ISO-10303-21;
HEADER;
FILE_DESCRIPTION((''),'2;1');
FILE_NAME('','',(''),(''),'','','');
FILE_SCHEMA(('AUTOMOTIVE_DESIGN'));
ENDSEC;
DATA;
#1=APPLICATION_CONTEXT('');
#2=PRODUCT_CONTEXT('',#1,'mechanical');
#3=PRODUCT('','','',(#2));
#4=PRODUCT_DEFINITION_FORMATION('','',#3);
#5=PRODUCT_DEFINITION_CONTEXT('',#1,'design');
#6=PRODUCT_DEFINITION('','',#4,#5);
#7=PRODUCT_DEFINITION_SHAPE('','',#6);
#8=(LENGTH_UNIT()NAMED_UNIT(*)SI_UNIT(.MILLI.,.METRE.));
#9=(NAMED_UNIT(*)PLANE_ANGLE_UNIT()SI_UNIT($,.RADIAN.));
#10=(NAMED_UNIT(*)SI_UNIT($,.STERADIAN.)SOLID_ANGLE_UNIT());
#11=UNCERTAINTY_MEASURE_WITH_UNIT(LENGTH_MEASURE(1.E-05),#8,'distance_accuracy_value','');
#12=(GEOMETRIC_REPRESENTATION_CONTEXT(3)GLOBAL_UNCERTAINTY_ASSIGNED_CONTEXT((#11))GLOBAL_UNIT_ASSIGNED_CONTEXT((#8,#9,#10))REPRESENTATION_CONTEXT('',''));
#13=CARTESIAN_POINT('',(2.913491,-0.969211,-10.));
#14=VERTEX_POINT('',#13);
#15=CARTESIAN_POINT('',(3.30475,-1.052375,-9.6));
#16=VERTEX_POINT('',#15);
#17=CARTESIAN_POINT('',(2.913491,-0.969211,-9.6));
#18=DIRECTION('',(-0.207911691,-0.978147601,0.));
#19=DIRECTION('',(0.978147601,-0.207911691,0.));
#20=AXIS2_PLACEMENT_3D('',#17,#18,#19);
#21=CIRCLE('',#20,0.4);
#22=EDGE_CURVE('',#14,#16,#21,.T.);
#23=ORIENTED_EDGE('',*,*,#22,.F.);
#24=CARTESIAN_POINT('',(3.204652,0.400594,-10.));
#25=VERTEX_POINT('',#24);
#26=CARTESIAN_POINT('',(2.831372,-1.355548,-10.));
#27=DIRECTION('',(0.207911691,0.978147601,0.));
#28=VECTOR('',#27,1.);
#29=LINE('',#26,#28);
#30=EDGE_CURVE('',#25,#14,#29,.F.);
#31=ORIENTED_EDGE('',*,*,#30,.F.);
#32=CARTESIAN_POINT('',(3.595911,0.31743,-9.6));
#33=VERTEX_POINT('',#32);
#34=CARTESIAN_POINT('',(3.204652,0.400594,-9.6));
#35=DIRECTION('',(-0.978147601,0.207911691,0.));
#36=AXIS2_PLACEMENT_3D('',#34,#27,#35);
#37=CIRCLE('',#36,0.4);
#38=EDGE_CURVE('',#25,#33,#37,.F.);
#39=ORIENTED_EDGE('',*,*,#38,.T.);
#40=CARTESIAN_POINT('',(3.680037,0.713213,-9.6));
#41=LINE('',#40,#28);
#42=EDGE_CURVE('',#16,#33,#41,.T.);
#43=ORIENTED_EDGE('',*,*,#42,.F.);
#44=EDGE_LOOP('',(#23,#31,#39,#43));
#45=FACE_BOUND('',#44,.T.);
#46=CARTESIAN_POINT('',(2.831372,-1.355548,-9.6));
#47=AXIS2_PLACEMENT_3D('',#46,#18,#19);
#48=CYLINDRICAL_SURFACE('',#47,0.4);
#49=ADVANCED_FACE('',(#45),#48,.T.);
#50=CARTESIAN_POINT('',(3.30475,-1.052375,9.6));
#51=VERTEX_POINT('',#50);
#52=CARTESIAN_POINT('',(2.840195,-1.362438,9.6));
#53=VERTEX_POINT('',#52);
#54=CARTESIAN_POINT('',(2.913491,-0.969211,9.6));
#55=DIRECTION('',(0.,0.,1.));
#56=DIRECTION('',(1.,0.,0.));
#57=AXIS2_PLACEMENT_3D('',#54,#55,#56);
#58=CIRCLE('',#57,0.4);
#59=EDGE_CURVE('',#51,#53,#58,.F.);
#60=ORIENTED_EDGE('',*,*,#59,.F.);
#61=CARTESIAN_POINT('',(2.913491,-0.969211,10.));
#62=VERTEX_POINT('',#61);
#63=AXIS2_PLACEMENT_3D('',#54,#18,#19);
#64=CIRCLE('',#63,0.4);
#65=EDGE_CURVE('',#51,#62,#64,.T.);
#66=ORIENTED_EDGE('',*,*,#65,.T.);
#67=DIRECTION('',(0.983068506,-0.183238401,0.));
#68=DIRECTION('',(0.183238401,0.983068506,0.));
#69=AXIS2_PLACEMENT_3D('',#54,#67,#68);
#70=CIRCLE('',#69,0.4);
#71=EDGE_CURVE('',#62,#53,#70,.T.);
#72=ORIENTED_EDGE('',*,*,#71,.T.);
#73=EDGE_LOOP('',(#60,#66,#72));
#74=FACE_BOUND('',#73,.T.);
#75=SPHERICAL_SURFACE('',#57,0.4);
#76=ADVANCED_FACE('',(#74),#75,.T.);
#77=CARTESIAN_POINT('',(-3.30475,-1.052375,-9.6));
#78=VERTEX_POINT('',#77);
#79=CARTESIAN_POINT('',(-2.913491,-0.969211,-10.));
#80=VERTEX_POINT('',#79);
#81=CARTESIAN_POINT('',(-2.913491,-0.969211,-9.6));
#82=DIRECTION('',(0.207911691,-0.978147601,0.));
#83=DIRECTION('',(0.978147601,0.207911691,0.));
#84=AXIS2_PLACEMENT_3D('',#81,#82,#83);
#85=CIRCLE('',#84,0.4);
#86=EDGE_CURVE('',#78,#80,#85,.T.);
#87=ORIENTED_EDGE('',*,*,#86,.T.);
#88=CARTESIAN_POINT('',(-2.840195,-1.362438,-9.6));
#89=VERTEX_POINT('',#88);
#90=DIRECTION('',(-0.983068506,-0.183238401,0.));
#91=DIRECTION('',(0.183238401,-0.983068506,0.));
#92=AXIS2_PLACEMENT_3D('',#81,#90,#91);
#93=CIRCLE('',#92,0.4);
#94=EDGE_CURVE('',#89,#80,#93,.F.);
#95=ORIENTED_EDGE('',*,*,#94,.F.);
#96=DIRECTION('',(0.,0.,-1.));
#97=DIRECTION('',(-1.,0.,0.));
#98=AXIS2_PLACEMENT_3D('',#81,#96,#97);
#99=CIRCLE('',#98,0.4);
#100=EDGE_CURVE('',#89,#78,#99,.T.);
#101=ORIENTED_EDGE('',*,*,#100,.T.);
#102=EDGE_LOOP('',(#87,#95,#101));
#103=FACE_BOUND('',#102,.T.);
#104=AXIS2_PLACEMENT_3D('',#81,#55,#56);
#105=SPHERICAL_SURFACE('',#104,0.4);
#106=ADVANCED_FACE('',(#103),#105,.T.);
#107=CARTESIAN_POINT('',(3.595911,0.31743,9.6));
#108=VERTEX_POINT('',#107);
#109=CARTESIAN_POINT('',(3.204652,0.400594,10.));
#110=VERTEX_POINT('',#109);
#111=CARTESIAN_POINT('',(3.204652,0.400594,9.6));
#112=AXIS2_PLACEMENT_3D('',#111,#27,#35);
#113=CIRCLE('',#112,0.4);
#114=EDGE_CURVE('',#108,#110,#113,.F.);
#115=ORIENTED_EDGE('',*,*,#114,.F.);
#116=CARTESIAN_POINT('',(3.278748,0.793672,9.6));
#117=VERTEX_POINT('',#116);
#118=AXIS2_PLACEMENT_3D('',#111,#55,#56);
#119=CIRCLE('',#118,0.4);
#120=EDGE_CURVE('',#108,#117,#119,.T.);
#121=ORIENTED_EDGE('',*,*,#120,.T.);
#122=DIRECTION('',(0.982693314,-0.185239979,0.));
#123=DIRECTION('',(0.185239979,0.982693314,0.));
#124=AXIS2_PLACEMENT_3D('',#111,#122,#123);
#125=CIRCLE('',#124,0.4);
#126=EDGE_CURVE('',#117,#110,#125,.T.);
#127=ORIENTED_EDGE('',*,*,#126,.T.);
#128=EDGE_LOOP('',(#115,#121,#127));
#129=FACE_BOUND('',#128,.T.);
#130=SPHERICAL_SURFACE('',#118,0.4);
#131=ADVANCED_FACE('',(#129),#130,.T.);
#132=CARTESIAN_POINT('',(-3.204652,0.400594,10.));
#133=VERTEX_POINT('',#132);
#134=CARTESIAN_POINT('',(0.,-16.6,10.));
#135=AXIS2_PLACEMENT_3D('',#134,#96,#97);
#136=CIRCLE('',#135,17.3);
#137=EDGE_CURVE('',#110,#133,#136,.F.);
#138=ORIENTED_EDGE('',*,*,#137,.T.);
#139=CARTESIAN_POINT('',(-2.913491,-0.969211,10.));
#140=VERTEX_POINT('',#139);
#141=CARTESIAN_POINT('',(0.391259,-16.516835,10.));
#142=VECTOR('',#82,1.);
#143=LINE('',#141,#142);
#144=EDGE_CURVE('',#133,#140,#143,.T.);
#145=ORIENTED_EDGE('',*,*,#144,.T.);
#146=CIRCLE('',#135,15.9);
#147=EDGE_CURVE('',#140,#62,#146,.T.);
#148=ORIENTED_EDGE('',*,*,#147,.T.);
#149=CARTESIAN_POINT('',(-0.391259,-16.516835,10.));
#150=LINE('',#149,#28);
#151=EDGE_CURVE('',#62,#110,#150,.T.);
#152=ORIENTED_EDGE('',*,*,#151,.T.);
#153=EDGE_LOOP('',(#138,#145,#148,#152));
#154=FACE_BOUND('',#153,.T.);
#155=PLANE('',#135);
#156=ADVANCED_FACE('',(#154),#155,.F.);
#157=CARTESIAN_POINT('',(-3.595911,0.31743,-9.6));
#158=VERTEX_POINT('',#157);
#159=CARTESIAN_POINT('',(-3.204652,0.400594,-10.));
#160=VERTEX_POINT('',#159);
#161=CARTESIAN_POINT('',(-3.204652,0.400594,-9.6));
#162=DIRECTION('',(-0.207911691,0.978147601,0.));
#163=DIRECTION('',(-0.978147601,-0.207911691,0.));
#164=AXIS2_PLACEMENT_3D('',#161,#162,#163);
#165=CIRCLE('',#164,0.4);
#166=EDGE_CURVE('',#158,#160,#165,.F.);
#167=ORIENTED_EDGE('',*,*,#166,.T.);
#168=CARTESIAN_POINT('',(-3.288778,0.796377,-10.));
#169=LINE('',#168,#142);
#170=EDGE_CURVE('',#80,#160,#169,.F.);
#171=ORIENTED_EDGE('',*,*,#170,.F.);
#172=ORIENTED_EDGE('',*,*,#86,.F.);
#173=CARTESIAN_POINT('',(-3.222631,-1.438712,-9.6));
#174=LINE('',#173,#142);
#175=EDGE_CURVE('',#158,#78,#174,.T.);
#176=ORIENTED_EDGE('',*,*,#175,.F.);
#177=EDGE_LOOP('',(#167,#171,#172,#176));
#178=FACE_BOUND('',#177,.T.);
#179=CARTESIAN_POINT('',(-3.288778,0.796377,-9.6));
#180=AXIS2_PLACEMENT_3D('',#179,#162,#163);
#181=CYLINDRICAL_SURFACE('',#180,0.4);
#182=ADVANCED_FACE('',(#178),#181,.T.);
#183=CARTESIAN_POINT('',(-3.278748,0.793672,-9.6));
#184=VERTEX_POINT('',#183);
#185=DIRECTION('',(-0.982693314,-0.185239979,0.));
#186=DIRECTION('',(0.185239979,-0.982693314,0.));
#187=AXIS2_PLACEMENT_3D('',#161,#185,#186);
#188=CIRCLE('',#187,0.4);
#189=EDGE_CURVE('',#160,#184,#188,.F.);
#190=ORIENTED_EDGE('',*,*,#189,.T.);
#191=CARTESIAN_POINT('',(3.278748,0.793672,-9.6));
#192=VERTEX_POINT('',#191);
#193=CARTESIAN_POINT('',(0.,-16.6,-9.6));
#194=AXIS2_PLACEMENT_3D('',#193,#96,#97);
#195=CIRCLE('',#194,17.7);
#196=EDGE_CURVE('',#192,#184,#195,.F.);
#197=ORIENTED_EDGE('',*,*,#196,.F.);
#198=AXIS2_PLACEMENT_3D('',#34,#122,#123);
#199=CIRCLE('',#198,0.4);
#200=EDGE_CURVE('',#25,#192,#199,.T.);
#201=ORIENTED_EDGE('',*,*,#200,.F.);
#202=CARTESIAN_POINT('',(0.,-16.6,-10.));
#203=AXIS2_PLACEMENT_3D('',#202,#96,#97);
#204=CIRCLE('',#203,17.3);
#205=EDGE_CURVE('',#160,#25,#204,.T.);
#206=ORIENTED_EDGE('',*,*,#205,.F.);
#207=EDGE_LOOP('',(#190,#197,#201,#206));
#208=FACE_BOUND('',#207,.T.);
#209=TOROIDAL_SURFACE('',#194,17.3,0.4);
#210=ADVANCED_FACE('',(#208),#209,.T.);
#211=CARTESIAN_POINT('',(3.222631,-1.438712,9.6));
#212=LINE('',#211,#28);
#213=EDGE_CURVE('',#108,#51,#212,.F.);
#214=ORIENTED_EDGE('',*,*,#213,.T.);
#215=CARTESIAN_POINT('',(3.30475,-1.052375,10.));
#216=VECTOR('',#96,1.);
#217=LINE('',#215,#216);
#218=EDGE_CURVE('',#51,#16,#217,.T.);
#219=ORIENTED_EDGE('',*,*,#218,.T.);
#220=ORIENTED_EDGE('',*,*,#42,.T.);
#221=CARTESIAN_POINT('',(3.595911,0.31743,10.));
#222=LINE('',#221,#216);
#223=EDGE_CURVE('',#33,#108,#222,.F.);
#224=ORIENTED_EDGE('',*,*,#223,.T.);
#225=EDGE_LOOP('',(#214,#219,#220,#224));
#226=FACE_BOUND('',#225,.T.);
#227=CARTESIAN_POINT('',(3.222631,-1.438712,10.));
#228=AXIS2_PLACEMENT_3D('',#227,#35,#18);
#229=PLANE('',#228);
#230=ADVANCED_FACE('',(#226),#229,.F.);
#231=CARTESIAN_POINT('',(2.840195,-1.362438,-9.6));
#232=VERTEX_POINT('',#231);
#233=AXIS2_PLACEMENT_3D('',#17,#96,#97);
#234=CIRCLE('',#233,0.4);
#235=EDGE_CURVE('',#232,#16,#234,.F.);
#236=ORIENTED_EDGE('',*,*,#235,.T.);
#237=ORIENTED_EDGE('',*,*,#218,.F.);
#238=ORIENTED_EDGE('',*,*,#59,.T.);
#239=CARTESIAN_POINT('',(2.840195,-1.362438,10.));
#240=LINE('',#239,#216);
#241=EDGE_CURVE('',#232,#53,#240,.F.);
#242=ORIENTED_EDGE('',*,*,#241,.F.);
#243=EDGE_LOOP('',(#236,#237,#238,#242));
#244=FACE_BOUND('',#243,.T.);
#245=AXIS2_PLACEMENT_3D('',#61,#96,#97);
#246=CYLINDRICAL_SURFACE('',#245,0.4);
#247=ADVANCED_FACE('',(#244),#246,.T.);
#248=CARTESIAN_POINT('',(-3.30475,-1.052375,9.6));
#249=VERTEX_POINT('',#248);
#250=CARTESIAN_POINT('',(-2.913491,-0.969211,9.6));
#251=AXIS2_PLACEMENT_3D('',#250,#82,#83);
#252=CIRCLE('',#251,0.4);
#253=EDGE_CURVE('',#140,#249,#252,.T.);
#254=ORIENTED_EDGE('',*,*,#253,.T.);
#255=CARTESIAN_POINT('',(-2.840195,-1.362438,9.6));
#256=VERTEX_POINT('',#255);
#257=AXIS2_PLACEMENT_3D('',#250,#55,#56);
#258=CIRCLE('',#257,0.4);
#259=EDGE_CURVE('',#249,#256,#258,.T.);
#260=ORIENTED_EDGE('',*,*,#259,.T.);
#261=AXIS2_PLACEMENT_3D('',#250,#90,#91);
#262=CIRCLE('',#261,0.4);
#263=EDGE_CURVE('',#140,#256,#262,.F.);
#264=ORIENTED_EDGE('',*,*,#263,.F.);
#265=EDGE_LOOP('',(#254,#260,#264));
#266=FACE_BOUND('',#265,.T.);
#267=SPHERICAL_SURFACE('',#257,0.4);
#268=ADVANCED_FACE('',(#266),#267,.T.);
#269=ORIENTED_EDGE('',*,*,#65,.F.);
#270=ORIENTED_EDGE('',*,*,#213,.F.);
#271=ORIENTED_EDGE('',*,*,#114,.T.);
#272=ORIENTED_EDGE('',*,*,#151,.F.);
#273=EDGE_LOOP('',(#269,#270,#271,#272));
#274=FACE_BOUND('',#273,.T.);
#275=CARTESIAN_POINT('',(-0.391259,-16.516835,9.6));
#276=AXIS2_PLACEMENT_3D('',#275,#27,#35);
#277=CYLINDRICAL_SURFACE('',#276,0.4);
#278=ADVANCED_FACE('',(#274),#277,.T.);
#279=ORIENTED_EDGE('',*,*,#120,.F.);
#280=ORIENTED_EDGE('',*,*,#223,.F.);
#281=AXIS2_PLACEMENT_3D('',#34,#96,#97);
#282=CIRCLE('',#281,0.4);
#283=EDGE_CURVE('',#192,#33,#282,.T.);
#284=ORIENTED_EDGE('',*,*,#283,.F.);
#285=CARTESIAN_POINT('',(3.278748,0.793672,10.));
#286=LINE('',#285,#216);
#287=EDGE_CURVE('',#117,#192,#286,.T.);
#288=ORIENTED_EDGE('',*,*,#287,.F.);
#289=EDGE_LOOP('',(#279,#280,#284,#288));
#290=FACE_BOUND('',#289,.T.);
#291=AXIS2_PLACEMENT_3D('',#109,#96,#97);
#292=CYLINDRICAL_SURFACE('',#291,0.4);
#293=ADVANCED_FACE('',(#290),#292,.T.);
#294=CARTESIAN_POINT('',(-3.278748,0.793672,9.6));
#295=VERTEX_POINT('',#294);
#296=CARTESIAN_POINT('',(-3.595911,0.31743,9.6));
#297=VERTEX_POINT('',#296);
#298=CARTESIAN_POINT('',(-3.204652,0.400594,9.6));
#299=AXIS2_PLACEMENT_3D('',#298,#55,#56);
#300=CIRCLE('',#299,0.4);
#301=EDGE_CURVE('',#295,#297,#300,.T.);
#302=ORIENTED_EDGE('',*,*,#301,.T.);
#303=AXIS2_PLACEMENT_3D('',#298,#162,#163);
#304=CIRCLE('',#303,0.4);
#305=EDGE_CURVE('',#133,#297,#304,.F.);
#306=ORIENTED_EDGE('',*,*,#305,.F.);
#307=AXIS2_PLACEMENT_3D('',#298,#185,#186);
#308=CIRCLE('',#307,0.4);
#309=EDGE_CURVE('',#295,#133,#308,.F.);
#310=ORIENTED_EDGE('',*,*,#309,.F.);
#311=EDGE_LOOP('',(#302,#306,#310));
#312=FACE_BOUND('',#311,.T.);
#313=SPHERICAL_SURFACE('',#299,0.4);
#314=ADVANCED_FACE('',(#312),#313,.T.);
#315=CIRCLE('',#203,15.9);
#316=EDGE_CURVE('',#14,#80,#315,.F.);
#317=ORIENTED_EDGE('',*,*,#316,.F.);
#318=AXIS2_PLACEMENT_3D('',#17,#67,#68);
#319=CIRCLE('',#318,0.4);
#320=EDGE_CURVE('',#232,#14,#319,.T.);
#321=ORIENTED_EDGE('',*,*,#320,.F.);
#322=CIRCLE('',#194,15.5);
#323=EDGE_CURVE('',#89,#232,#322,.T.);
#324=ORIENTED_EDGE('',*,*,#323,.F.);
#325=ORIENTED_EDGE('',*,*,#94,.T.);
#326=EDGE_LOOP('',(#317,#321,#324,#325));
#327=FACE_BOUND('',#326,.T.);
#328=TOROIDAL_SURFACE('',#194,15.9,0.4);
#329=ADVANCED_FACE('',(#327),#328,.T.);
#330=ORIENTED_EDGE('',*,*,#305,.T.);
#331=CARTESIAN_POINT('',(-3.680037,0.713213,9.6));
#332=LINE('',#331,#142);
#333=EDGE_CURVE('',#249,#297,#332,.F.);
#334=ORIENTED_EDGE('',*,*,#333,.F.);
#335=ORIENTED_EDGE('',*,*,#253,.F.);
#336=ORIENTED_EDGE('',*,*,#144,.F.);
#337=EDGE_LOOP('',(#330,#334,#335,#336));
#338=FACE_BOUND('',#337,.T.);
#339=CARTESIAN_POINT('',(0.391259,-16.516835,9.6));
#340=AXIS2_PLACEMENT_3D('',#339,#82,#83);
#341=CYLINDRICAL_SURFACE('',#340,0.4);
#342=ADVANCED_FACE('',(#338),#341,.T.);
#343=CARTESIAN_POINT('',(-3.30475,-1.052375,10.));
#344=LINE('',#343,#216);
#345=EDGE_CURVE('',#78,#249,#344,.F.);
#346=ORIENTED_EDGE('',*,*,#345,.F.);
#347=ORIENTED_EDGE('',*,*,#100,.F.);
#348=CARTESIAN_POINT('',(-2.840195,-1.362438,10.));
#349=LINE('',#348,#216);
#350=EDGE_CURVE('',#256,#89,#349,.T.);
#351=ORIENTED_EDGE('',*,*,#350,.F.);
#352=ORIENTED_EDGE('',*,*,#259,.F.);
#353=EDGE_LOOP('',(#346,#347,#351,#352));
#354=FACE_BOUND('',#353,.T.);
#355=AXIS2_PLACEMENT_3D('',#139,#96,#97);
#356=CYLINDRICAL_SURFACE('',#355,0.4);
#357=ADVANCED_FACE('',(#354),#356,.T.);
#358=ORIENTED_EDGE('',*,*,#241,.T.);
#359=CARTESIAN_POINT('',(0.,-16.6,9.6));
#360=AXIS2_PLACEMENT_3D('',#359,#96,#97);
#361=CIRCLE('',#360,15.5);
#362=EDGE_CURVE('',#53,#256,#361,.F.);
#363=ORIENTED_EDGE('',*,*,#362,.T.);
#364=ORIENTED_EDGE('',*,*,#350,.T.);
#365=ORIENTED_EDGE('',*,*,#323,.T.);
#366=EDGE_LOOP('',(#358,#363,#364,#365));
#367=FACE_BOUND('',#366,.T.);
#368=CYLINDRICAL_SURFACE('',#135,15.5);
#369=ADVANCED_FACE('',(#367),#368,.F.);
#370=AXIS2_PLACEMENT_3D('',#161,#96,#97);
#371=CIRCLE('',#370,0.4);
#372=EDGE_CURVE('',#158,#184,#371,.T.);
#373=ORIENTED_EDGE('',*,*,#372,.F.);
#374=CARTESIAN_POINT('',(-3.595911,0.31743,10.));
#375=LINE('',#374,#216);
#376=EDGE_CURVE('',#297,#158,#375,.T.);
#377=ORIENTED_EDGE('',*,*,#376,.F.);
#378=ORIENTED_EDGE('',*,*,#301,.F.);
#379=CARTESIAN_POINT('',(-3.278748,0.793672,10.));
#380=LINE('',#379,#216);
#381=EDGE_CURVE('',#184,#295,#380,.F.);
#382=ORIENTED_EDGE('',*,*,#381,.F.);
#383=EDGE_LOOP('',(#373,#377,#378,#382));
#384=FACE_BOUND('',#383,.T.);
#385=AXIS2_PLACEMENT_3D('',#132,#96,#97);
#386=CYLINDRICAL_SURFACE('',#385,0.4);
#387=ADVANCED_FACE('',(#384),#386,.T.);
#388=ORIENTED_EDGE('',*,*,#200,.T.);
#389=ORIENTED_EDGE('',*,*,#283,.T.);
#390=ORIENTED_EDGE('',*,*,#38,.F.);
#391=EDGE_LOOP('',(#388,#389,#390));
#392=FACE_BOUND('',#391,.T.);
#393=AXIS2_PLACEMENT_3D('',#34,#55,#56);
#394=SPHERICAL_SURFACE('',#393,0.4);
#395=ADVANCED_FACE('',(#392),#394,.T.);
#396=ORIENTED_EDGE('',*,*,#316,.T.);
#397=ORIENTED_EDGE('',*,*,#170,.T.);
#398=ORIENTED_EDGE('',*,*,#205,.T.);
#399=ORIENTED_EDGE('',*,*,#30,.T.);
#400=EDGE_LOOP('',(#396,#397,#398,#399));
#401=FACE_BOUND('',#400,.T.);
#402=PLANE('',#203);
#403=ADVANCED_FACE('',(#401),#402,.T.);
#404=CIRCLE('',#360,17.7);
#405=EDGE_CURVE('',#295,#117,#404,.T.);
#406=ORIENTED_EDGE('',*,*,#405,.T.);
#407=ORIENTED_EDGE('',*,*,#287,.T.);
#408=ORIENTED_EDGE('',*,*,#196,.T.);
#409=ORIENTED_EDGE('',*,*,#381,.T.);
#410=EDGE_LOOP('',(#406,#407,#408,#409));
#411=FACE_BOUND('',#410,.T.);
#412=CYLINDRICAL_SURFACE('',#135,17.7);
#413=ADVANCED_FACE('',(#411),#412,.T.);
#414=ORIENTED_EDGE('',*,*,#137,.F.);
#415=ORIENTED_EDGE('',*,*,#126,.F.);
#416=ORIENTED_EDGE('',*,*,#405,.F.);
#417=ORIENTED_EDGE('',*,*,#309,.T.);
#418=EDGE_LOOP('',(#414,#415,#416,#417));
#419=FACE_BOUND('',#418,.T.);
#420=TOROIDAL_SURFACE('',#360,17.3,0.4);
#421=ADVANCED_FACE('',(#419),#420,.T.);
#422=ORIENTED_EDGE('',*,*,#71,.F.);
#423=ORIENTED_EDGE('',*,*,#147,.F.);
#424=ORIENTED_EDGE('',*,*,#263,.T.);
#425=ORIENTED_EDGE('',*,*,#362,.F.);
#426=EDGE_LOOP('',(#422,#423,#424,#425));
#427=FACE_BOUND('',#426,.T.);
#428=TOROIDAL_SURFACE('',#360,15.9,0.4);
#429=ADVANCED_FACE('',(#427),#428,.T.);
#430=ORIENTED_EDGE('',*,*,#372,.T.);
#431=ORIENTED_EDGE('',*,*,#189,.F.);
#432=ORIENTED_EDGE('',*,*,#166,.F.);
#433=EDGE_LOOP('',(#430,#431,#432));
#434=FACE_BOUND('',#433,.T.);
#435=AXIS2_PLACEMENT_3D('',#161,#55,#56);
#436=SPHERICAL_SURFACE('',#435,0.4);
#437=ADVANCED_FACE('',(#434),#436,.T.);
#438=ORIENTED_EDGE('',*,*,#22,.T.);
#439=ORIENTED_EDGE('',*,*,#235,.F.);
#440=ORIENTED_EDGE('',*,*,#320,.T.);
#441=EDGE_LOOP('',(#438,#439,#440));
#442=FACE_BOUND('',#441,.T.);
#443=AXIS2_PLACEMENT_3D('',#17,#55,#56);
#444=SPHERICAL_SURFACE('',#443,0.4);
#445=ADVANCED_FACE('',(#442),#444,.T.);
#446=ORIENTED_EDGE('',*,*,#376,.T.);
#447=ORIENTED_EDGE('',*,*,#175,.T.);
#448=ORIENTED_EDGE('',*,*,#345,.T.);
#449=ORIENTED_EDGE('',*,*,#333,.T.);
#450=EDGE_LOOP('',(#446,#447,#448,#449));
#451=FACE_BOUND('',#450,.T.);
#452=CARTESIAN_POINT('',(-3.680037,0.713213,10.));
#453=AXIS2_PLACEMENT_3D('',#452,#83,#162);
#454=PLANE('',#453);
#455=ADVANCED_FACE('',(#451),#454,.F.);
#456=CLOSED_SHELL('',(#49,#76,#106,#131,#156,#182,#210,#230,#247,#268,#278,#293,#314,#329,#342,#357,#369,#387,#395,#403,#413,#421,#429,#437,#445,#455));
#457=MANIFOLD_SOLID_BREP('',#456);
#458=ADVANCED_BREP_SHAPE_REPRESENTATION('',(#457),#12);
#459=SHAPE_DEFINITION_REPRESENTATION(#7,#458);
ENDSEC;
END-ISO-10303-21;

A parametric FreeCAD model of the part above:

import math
import FreeCAD as App
import Part
import Sketcher

V = App.Vector
Q = App.Units.Quantity

doc = App.newDocument("Part")
body = doc.addObject("PartDesign::Body", "Body")

# Sketch on XY plane
sketch1 = body.newObject("Sketcher::SketchObject", "Sketch")
sketch1.AttachmentSupport = (doc.getObject("XY_Plane"), [""])
sketch1.MapMode = "FlatFace"
sketch1.addGeometry([
    Part.LineSegment(V(-3.7, 0.7, 0), V(-3.2, -1.4, 0)),
    Part.ArcOfCircle(Part.Circle(V(0, -16.6, 0), V(0, 0, 1), 15.5), math.radians(78), math.radians(102)),
    Part.LineSegment(V(3.2, -1.4, 0), V(3.7, 0.7, 0)),
    Part.ArcOfCircle(Part.Circle(V(0, -16.6, 0), V(0, 0, 1), 17.7), math.radians(78), math.radians(102)),
], False)
sketch1.addConstraint([
    Sketcher.Constraint("Coincident", 0, 2, 1, 2),
    Sketcher.Constraint("Coincident", 1, 1, 2, 1),
    Sketcher.Constraint("Coincident", 2, 2, 3, 1),
    Sketcher.Constraint("Coincident", 3, 2, 0, 1),
    Sketcher.Constraint("Coincident", 3, 3, 1, 3),
    Sketcher.Constraint("Symmetric", 0, 2, 1, 1, -2),
    Sketcher.Constraint("Horizontal", 2, 2, 3, 2),
    Sketcher.Constraint("Radius", 1, Q("15.5 mm")),
    Sketcher.Constraint("Radius", 3, Q("17.7 mm")),
    Sketcher.Constraint("Angle", 0, Q("-78 deg")),
    Sketcher.Constraint("DistanceY", 1, 3, -1, 1, Q("16.6 mm")),
    Sketcher.Constraint("DistanceX", 0, 2, -1, 1, Q("3.222631 mm")),
])
pad1 = body.newObject("PartDesign::Pad", "Pad")
pad1.Profile = sketch1
pad1.Length = 20
pad1.Midplane = True
doc.recompute()

fillet = body.newObject("PartDesign::Fillet", "Fillet")
fillet.Base = (pad1, ["Edge1"])
fillet.UseAllEdges = True
fillet.Radius = 0.4

doc.recompute()
